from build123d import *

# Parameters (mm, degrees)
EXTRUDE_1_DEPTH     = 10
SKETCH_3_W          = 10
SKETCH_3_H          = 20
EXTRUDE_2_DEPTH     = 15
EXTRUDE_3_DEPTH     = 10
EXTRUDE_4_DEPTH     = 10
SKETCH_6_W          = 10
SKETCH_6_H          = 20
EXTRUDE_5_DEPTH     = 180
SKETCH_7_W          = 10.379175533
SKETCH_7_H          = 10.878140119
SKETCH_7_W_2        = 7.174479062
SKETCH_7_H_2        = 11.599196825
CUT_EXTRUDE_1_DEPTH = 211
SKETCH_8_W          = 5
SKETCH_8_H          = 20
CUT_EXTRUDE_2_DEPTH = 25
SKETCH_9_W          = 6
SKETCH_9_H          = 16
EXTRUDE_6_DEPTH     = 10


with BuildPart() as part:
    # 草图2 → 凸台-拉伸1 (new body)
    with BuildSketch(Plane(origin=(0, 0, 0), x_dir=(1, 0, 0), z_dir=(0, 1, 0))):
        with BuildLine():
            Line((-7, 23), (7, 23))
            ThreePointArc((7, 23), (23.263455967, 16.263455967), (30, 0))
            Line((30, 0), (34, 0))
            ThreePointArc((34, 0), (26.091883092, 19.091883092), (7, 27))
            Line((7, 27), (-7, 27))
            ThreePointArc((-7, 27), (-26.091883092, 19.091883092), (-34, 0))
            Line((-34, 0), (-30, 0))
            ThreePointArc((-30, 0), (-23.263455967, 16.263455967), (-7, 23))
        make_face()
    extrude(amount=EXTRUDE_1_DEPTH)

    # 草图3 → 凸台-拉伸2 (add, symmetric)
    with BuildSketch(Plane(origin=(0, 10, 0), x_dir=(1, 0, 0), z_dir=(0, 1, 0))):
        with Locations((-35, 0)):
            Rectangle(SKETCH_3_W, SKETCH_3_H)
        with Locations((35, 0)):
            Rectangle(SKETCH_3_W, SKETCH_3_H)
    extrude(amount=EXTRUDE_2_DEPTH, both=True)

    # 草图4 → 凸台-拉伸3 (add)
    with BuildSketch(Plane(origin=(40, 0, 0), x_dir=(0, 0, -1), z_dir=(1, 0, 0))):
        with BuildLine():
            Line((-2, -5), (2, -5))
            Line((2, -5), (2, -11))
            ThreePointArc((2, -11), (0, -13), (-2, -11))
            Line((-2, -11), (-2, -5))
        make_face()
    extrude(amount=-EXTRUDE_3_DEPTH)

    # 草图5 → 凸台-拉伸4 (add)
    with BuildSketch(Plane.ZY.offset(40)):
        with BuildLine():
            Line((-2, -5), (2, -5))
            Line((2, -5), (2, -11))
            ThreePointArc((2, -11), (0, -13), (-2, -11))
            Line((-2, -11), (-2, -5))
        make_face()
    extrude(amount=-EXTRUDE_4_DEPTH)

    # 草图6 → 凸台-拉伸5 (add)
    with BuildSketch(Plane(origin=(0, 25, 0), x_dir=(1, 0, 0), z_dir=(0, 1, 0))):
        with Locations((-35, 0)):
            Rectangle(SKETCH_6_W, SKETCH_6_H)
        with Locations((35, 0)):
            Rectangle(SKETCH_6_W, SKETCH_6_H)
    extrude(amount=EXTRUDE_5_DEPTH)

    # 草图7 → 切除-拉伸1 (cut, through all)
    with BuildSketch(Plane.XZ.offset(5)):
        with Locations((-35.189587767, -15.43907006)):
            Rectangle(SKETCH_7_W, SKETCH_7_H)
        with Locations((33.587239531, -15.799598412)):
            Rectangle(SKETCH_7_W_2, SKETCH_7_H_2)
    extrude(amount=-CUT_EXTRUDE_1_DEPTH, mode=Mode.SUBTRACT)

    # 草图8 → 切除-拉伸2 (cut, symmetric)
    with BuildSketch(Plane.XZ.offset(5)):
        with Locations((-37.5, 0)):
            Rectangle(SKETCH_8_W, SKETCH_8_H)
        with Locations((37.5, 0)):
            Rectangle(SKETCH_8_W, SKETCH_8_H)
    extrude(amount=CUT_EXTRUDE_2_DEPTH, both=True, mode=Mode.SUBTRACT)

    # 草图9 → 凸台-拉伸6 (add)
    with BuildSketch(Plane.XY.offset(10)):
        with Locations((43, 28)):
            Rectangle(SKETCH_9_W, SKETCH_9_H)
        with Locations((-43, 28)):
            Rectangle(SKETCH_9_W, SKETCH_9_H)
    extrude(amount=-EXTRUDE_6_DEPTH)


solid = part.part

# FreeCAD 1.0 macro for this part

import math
import FreeCAD as App
import Part
import Sketcher
Q = App.Units.Quantity


def add_polygon(sketch, points):
    """Adds a closed chain of lines whose ends are joined by coincident constraints."""
    first, n = sketch.GeometryCount, len(points)
    for a, b in zip(points, points[1:] + points[:1]):
        sketch.addGeometry(Part.LineSegment(App.Vector(*a, 0), App.Vector(*b, 0)), False)
    for i in range(n):
        sketch.addConstraint(Sketcher.Constraint("Coincident", first + i, 2, first + (i + 1) % n, 1))

doc = App.newDocument("Part")
params = doc.addObject("Spreadsheet::Sheet", "Params")
for row, (alias, value) in enumerate([
    ("sketch1_radius", "23 mm"),
    ("sketch1_radius2", "27 mm"),
    ("sketch1_width", "14 mm"),
    ("pad1_length", "10 mm"),
    ("sketch2_width", "10 mm"),
    ("sketch2_height", "20 mm"),
    ("pad2_length", "30 mm"),
    ("sketch3_radius", "2 mm"),
    ("sketch3_width", "6 mm"),
    ("pad3_length", "10 mm"),
    ("sketch4_radius", "2 mm"),
    ("sketch4_width", "6 mm"),
    ("pad4_length", "10 mm"),
    ("sketch5_width", "10 mm"),
    ("sketch5_height", "20 mm"),
    ("pad5_length", "180 mm"),
    ("sketch7_width", "5 mm"),
    ("sketch7_height", "20 mm"),
    ("pocket2_length", "50 mm"),
    ("sketch8_width", "6 mm"),
    ("sketch8_height", "16 mm"),
    ("pad6_length", "10 mm"),
], start=1):
    params.set(f"A{row}", alias)
    params.set(f"B{row}", "=" + value)
    params.setAlias(f"B{row}", alias)

body = doc.addObject("PartDesign::Body", "Body")

sketch1 = body.newObject("Sketcher::SketchObject", "Sketch")
sketch1.AttachmentSupport = (doc.getObject("XZ_Plane"), [""])
sketch1.MapMode = "FlatFace"
sketch1.addGeometry(Part.LineSegment(App.Vector(-7, -23, 0), App.Vector(7, -23, 0)), False)
sketch1.addGeometry(Part.ArcOfCircle(Part.Circle(App.Vector(7, 0, 0), App.Vector(0, 0, 1), 23), math.radians(-90), math.radians(0)), False)
sketch1.addGeometry(Part.LineSegment(App.Vector(30, 0, 0), App.Vector(34, 0, 0)), False)
sketch1.addGeometry(Part.ArcOfCircle(Part.Circle(App.Vector(7, 0, 0), App.Vector(0, 0, 1), 27), math.radians(-90), math.radians(0)), False)
sketch1.addGeometry(Part.LineSegment(App.Vector(7, -27, 0), App.Vector(-7, -27, 0)), False)
sketch1.addGeometry(Part.ArcOfCircle(Part.Circle(App.Vector(-7, 0, 0), App.Vector(0, 0, 1), 27), math.radians(180), math.radians(270)), False)
sketch1.addGeometry(Part.LineSegment(App.Vector(-34, 0, 0), App.Vector(-30, 0, 0)), False)
sketch1.addGeometry(Part.ArcOfCircle(Part.Circle(App.Vector(-7, 0, 0), App.Vector(0, 0, 1), 23), math.radians(-180), math.radians(-90)), False)
sketch1.addConstraint(Sketcher.Constraint("Tangent", 0, 2, 1, 1))
sketch1.addConstraint(Sketcher.Constraint("Coincident", 1, 2, 2, 1))
sketch1.addConstraint(Sketcher.Constraint("Coincident", 2, 2, 3, 2))
sketch1.addConstraint(Sketcher.Constraint("Tangent", 3, 1, 4, 1))
sketch1.addConstraint(Sketcher.Constraint("Tangent", 4, 2, 5, 2))
sketch1.addConstraint(Sketcher.Constraint("Coincident", 5, 1, 6, 1))
sketch1.addConstraint(Sketcher.Constraint("Coincident", 6, 2, 7, 1))
sketch1.addConstraint(Sketcher.Constraint("Tangent", 7, 2, 0, 1))
sketch1.addConstraint(Sketcher.Constraint("Horizontal", 0))
sketch1.addConstraint(Sketcher.Constraint("Horizontal", 2))
sketch1.addConstraint(Sketcher.Constraint("Horizontal", 4))
sketch1.addConstraint(Sketcher.Constraint("Horizontal", 6))
sketch1.addConstraint(Sketcher.Constraint("Coincident", 3, 3, 1, 3))
sketch1.addConstraint(Sketcher.Constraint("Coincident", 7, 3, 5, 3))
sketch1.addConstraint(Sketcher.Constraint("Equal", 3, 5))
sketch1.addConstraint(Sketcher.Constraint("Symmetric", 1, 3, 5, 3, -1, 1))
sketch1.addConstraint(Sketcher.Constraint("PointOnObject", 1, 2, -1))
sketch1.addConstraint(Sketcher.Constraint("PointOnObject", 5, 1, -1))
sketch1.addConstraint(Sketcher.Constraint("Radius", 1, Q("23 mm")))
sketch1.addConstraint(Sketcher.Constraint("Radius", 3, Q("27 mm")))
sketch1.addConstraint(Sketcher.Constraint("DistanceX", 0, 1, 0, 2, Q("14 mm")))
sketch1.setExpression("Constraints[18]", "Params.sketch1_radius")
sketch1.setExpression("Constraints[19]", "Params.sketch1_radius2")
sketch1.setExpression("Constraints[20]", "Params.sketch1_width")
pad1 = body.newObject("PartDesign::Pad", "Pad")
pad1.Profile = sketch1
pad1.setExpression("Length", "Params.pad1_length")
pad1.Reversed = True

sketch2 = body.newObject("Sketcher::SketchObject", "Sketch001")
sketch2.AttachmentSupport = (doc.getObject("XZ_Plane"), [""])
sketch2.MapMode = "FlatFace"
sketch2.AttachmentOffset = App.Placement(App.Vector(0, 0, -10), App.Rotation())
add_polygon(sketch2, [(-40, -10), (-40, 10), (-30, 10), (-30, -10)])
add_polygon(sketch2, [(30, -10), (30, 10), (40, 10), (40, -10)])
sketch2.addConstraint(Sketcher.Constraint("Vertical", 0))
sketch2.addConstraint(Sketcher.Constraint("Horizontal", 1))
sketch2.addConstraint(Sketcher.Constraint("Vertical", 2))
sketch2.addConstraint(Sketcher.Constraint("Horizontal", 3))
sketch2.addConstraint(Sketcher.Constraint("Vertical", 4))
sketch2.addConstraint(Sketcher.Constraint("Horizontal", 5))
sketch2.addConstraint(Sketcher.Constraint("Vertical", 6))
sketch2.addConstraint(Sketcher.Constraint("Horizontal", 7))
sketch2.addConstraint(Sketcher.Constraint("Symmetric", 2, 2, 4, 2, -1, 1))
sketch2.addConstraint(Sketcher.Constraint("Symmetric", 0, 2, 6, 2, -1, 1))
sketch2.addConstraint(Sketcher.Constraint("Horizontal", 1, 2, 4, 2))
sketch2.addConstraint(Sketcher.Constraint("DistanceX", 1, 1, 1, 2, Q("10 mm")))
sketch2.addConstraint(Sketcher.Constraint("DistanceY", 0, 1, 0, 2, Q("20 mm")))
sketch2.addConstraint(Sketcher.Constraint("DistanceX", 0, 2, -1, 1, Q("40 mm")))
sketch2.setExpression("Constraints[19]", "Params.sketch2_width")
sketch2.setExpression("Constraints[20]", "Params.sketch2_height")
pad2 = body.newObject("PartDesign::Pad", "Pad001")
pad2.Profile = sketch2
pad2.setExpression("Length", "Params.pad2_length")
pad2.Midplane = True

sketch3 = body.newObject("Sketcher::SketchObject", "Sketch002")
sketch3.AttachmentSupport = (doc.getObject("YZ_Plane"), [""])
sketch3.MapMode = "FlatFace"
sketch3.AttachmentOffset = App.Placement(App.Vector(0, 0, 40), App.Rotation())
sketch3.addGeometry(Part.LineSegment(App.Vector(-5, -2, 0), App.Vector(-5, 2, 0)), False)
sketch3.addGeometry(Part.LineSegment(App.Vector(-5, 2, 0), App.Vector(-11, 2, 0)), False)
sketch3.addGeometry(Part.ArcOfCircle(Part.Circle(App.Vector(-11, 0, 0), App.Vector(0, 0, 1), 2), math.radians(90), math.radians(270)), False)
sketch3.addGeometry(Part.LineSegment(App.Vector(-11, -2, 0), App.Vector(-5, -2, 0)), False)
sketch3.addConstraint(Sketcher.Constraint("Coincident", 0, 2, 1, 1))
sketch3.addConstraint(Sketcher.Constraint("Tangent", 1, 2, 2, 1))
sketch3.addConstraint(Sketcher.Constraint("Tangent", 2, 2, 3, 1))
sketch3.addConstraint(Sketcher.Constraint("Coincident", 3, 2, 0, 1))
sketch3.addConstraint(Sketcher.Constraint("Vertical", 0))
sketch3.addConstraint(Sketcher.Constraint("Horizontal", 1))
sketch3.addConstraint(Sketcher.Constraint("Horizontal", 3))
sketch3.addConstraint(Sketcher.Constraint("PointOnObject", 2, 3, -1))
sketch3.addConstraint(Sketcher.Constraint("Radius", 2, Q("2 mm")))
sketch3.addConstraint(Sketcher.Constraint("DistanceX", 1, 2, 1, 1, Q("6 mm")))
sketch3.addConstraint(Sketcher.Constraint("DistanceX", 2, 3, -1, 1, Q("11 mm")))
sketch3.setExpression("Constraints[8]", "Params.sketch3_radius")
sketch3.setExpression("Constraints[9]", "Params.sketch3_width")
pad3 = body.newObject("PartDesign::Pad", "Pad002")
pad3.Profile = sketch3
pad3.setExpression("Length", "Params.pad3_length")
pad3.Reversed = True

sketch4 = body.newObject("Sketcher::SketchObject", "Sketch003")
sketch4.AttachmentSupport = (doc.getObject("YZ_Plane"), [""])
sketch4.MapMode = "FlatFace"
sketch4.AttachmentOffset = App.Placement(App.Vector(0, 0, -40), App.Rotation())
sketch4.addGeometry(Part.LineSegment(App.Vector(-5, 2, 0), App.Vector(-5, -2, 0)), False)
sketch4.addGeometry(Part.LineSegment(App.Vector(-5, -2, 0), App.Vector(-11, -2, 0)), False)
sketch4.addGeometry(Part.ArcOfCircle(Part.Circle(App.Vector(-11, 0, 0), App.Vector(0, 0, 1), 2), math.radians(90), math.radians(270)), False)
sketch4.addGeometry(Part.LineSegment(App.Vector(-11, 2, 0), App.Vector(-5, 2, 0)), False)
sketch4.addConstraint(Sketcher.Constraint("Coincident", 0, 2, 1, 1))
sketch4.addConstraint(Sketcher.Constraint("Tangent", 1, 2, 2, 2))
sketch4.addConstraint(Sketcher.Constraint("Tangent", 2, 1, 3, 1))
sketch4.addConstraint(Sketcher.Constraint("Coincident", 3, 2, 0, 1))
sketch4.addConstraint(Sketcher.Constraint("Vertical", 0))
sketch4.addConstraint(Sketcher.Constraint("Horizontal", 1))
sketch4.addConstraint(Sketcher.Constraint("Horizontal", 3))
sketch4.addConstraint(Sketcher.Constraint("PointOnObject", 2, 3, -1))
sketch4.addConstraint(Sketcher.Constraint("Radius", 2, Q("2 mm")))
sketch4.addConstraint(Sketcher.Constraint("DistanceX", 1, 2, 1, 1, Q("6 mm")))
sketch4.addConstraint(Sketcher.Constraint("DistanceX", 2, 3, -1, 1, Q("11 mm")))
sketch4.setExpression("Constraints[8]", "Params.sketch4_radius")
sketch4.setExpression("Constraints[9]", "Params.sketch4_width")
pad4 = body.newObject("PartDesign::Pad", "Pad003")
pad4.Profile = sketch4
pad4.setExpression("Length", "Params.pad4_length")

sketch5 = body.newObject("Sketcher::SketchObject", "Sketch004")
sketch5.AttachmentSupport = (doc.getObject("XZ_Plane"), [""])
sketch5.MapMode = "FlatFace"
sketch5.AttachmentOffset = App.Placement(App.Vector(0, 0, -25), App.Rotation())
add_polygon(sketch5, [(-40, -10), (-40, 10), (-30, 10), (-30, -10)])
add_polygon(sketch5, [(30, -10), (30, 10), (40, 10), (40, -10)])
sketch5.addConstraint(Sketcher.Constraint("Vertical", 0))
sketch5.addConstraint(Sketcher.Constraint("Horizontal", 1))
sketch5.addConstraint(Sketcher.Constraint("Vertical", 2))
sketch5.addConstraint(Sketcher.Constraint("Horizontal", 3))
sketch5.addConstraint(Sketcher.Constraint("Vertical", 4))
sketch5.addConstraint(Sketcher.Constraint("Horizontal", 5))
sketch5.addConstraint(Sketcher.Constraint("Vertical", 6))
sketch5.addConstraint(Sketcher.Constraint("Horizontal", 7))
sketch5.addConstraint(Sketcher.Constraint("Symmetric", 2, 2, 4, 2, -1, 1))
sketch5.addConstraint(Sketcher.Constraint("Symmetric", 0, 2, 6, 2, -1, 1))
sketch5.addConstraint(Sketcher.Constraint("Horizontal", 1, 2, 4, 2))
sketch5.addConstraint(Sketcher.Constraint("DistanceX", 1, 1, 1, 2, Q("10 mm")))
sketch5.addConstraint(Sketcher.Constraint("DistanceY", 0, 1, 0, 2, Q("20 mm")))
sketch5.addConstraint(Sketcher.Constraint("DistanceX", 0, 2, -1, 1, Q("40 mm")))
sketch5.setExpression("Constraints[19]", "Params.sketch5_width")
sketch5.setExpression("Constraints[20]", "Params.sketch5_height")
pad5 = body.newObject("PartDesign::Pad", "Pad004")
pad5.Profile = sketch5
pad5.setExpression("Length", "Params.pad5_length")
pad5.Reversed = True

sketch6 = body.newObject("Sketcher::SketchObject", "Sketch005")
sketch6.AttachmentSupport = (doc.getObject("XZ_Plane"), [""])
sketch6.MapMode = "FlatFace"
sketch6.AttachmentOffset = App.Placement(App.Vector(0, 0, 5), App.Rotation())
add_polygon(sketch6, [(-40.379176, -10), (-40.379176, -20.87814), (-30, -20.87814), (-30, -10)])
add_polygon(sketch6, [(30, -10), (30, -21.599197), (37.174479, -21.599197), (37.174479, -10)])
sketch6.addConstraint(Sketcher.Constraint("Vertical", 0))
sketch6.addConstraint(Sketcher.Constraint("Horizontal", 1))
sketch6.addConstraint(Sketcher.Constraint("Vertical", 2))
sketch6.addConstraint(Sketcher.Constraint("Horizontal", 3))
sketch6.addConstraint(Sketcher.Constraint("Vertical", 4))
sketch6.addConstraint(Sketcher.Constraint("Horizontal", 5))
sketch6.addConstraint(Sketcher.Constraint("Vertical", 6))
sketch6.addConstraint(Sketcher.Constraint("Horizontal", 7))
sketch6.addConstraint(Sketcher.Constraint("Symmetric", 2, 2, 7, 2, -2))
sketch6.addConstraint(Sketcher.Constraint("DistanceX", 1, 2, -1, 1, Q("30 mm")))
sketch6.addConstraint(Sketcher.Constraint("DistanceY", 2, 2, -1, 1, Q("10 mm")))
sketch6.addConstraint(Sketcher.Constraint("DistanceX", 5, 1, 5, 2, Q("7.174479 mm")))
sketch6.addConstraint(Sketcher.Constraint("DistanceY", 0, 2, 0, 1, Q("10.87814 mm")))
sketch6.addConstraint(Sketcher.Constraint("DistanceX", 1, 1, 1, 2, Q("10.379176 mm")))
sketch6.addConstraint(Sketcher.Constraint("DistanceY", 4, 2, 4, 1, Q("11.599197 mm")))
pocket1 = body.newObject("PartDesign::Pocket", "Pocket")
pocket1.Profile = sketch6
pocket1.Type = "ThroughAll"

sketch7 = body.newObject("Sketcher::SketchObject", "Sketch006")
sketch7.AttachmentSupport = (doc.getObject("XZ_Plane"), [""])
sketch7.MapMode = "FlatFace"
sketch7.AttachmentOffset = App.Placement(App.Vector(0, 0, 5), App.Rotation())
add_polygon(sketch7, [(-40, 10), (-40, -10), (-35, -10), (-35, 10)])
add_polygon(sketch7, [(35, 10), (35, -10), (40, -10), (40, 10)])
sketch7.addConstraint(Sketcher.Constraint("Vertical", 0))
sketch7.addConstraint(Sketcher.Constraint("Horizontal", 1))
sketch7.addConstraint(Sketcher.Constraint("Vertical", 2))
sketch7.addConstraint(Sketcher.Constraint("Horizontal", 3))
sketch7.addConstraint(Sketcher.Constraint("Vertical", 4))
sketch7.addConstraint(Sketcher.Constraint("Horizontal", 5))
sketch7.addConstraint(Sketcher.Constraint("Vertical", 6))
sketch7.addConstraint(Sketcher.Constraint("Horizontal", 7))
sketch7.addConstraint(Sketcher.Constraint("Symmetric", 2, 2, 4, 2, -1, 1))
sketch7.addConstraint(Sketcher.Constraint("Symmetric", 0, 2, 6, 2, -1, 1))
sketch7.addConstraint(Sketcher.Constraint("Horizontal", 1, 2, 4, 2))
sketch7.addConstraint(Sketcher.Constraint("DistanceX", 1, 1, 1, 2, Q("5 mm")))
sketch7.addConstraint(Sketcher.Constraint("DistanceY", 0, 2, 0, 1, Q("20 mm")))
sketch7.addConstraint(Sketcher.Constraint("DistanceX", 0, 2, -1, 1, Q("40 mm")))
sketch7.setExpression("Constraints[19]", "Params.sketch7_width")
sketch7.setExpression("Constraints[20]", "Params.sketch7_height")
pocket2 = body.newObject("PartDesign::Pocket", "Pocket001")
pocket2.Profile = sketch7
pocket2.setExpression("Length", "Params.pocket2_length")
pocket2.Midplane = True

sketch8 = body.newObject("Sketcher::SketchObject", "Sketch007")
sketch8.AttachmentSupport = (doc.getObject("XY_Plane"), [""])
sketch8.MapMode = "FlatFace"
sketch8.AttachmentOffset = App.Placement(App.Vector(0, 0, 10), App.Rotation())
add_polygon(sketch8, [(40, 36), (40, 20), (46, 20), (46, 36)])
add_polygon(sketch8, [(-46, 36), (-46, 20), (-40, 20), (-40, 36)])
sketch8.addConstraint(Sketcher.Constraint("Vertical", 0))
sketch8.addConstraint(Sketcher.Constraint("Horizontal", 1))
sketch8.addConstraint(Sketcher.Constraint("Vertical", 2))
sketch8.addConstraint(Sketcher.Constraint("Horizontal", 3))
sketch8.addConstraint(Sketcher.Constraint("Vertical", 4))
sketch8.addConstraint(Sketcher.Constraint("Horizontal", 5))
sketch8.addConstraint(Sketcher.Constraint("Vertical", 6))
sketch8.addConstraint(Sketcher.Constraint("Horizontal", 7))
sketch8.addConstraint(Sketcher.Constraint("Symmetric", 1, 2, 4, 2, -2))
sketch8.addConstraint(Sketcher.Constraint("Symmetric", 3, 2, 6, 2, -2))
sketch8.addConstraint(Sketcher.Constraint("DistanceX", 1, 1, 1, 2, Q("6 mm")))
sketch8.addConstraint(Sketcher.Constraint("DistanceY", 0, 2, 0, 1, Q("16 mm")))
sketch8.addConstraint(Sketcher.Constraint("DistanceX", -1, 1, 0, 2, Q("40 mm")))
sketch8.addConstraint(Sketcher.Constraint("DistanceY", -1, 1, 0, 2, Q("20 mm")))
sketch8.setExpression("Constraints[18]", "Params.sketch8_width")
sketch8.setExpression("Constraints[19]", "Params.sketch8_height")
pad6 = body.newObject("PartDesign::Pad", "Pad005")
pad6.Profile = sketch8
pad6.setExpression("Length", "Params.pad6_length")
pad6.Reversed = True

doc.recompute()
